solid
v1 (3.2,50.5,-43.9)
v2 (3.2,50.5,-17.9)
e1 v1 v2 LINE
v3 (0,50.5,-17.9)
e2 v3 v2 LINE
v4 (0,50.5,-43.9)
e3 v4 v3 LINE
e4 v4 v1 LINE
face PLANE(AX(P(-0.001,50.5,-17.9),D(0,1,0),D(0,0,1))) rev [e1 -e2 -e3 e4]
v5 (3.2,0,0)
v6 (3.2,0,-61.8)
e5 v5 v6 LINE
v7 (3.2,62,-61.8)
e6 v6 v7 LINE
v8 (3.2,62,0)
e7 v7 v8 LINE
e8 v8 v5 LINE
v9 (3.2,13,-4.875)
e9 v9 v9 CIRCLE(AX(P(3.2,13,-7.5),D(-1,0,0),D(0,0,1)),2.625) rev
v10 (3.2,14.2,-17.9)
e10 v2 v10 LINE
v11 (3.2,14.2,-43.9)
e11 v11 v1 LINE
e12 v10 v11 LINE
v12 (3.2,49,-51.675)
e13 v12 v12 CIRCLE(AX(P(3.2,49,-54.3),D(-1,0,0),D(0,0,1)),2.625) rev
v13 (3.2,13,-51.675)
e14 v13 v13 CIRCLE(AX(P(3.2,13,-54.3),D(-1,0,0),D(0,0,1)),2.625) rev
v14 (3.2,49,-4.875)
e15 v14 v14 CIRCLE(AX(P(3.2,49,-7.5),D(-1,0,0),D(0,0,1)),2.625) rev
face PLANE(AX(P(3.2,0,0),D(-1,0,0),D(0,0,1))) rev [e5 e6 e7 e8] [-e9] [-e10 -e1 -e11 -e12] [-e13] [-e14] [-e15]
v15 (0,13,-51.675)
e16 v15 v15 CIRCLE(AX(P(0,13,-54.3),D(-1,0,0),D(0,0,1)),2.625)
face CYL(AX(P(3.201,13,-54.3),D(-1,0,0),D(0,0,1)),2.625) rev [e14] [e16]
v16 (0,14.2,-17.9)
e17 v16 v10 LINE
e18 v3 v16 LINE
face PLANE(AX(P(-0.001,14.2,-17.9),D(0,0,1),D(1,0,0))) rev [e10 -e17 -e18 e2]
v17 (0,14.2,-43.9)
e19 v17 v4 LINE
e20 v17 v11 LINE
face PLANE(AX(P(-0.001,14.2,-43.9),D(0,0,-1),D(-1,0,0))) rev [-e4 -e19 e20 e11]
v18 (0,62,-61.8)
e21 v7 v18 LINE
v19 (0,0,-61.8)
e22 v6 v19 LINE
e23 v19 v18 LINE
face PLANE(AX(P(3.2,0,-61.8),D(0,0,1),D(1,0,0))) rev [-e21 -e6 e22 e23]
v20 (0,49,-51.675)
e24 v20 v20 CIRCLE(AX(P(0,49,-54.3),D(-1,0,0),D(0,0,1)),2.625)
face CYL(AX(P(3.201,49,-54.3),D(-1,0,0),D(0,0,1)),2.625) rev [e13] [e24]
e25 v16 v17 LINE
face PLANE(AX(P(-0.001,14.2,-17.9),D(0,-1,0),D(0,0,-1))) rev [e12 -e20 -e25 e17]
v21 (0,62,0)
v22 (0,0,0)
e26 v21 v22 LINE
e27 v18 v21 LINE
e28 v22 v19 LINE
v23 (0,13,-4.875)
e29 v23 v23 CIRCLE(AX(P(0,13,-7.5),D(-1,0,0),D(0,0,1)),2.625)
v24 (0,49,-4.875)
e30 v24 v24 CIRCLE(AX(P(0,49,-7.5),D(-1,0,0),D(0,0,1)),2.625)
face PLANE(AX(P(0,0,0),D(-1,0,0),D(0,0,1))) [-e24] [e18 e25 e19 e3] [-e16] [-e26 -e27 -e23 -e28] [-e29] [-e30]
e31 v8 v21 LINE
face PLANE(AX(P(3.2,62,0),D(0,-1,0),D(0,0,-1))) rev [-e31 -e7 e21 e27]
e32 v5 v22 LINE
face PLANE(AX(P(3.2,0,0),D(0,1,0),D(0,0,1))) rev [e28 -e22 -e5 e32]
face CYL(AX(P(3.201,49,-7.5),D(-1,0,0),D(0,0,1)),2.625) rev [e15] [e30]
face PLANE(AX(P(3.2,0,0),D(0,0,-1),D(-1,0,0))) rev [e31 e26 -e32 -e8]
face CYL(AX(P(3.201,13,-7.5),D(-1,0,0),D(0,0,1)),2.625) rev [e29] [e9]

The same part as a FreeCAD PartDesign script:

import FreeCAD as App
import Part
import Sketcher

V = App.Vector

doc = App.newDocument("Part")
body = doc.addObject("PartDesign::Body", "Body")

sketch1 = doc.addObject("Sketcher::SketchObject", "Sketch")
body.addObject(sketch1)
sketch1.AttachmentSupport = (doc.YZ_Plane, [""])
sketch1.MapMode = "FlatFace"
sketch1.addGeometry([
    Part.LineSegment(V(62, 0, 0), V(0, 0, 0)),
    Part.LineSegment(V(0, 0, 0), V(0, -61.8, 0)),
    Part.LineSegment(V(0, -61.8, 0), V(62, -61.8, 0)),
    Part.LineSegment(V(62, -61.8, 0), V(62, 0, 0)),
], False)
sketch1.addConstraint([
    Sketcher.Constraint("Coincident", 0, 2, 1, 1),
    Sketcher.Constraint("Coincident", 1, 2, 2, 1),
    Sketcher.Constraint("Coincident", 2, 2, 3, 1),
    Sketcher.Constraint("Coincident", 3, 2, 0, 1),
    Sketcher.Constraint("Horizontal", 0),
    Sketcher.Constraint("Vertical", 1),
    Sketcher.Constraint("Horizontal", 2),
    Sketcher.Constraint("Vertical", 3),
    Sketcher.Constraint("Coincident", 0, 2, -1, 1),
    Sketcher.Constraint("DistanceX", 0, 2, 0, 1, 62.0),
    Sketcher.Constraint("DistanceY", 1, 2, 1, 1, 61.8),
])
pad1 = doc.addObject("PartDesign::Pad", "Pad")
body.addObject(pad1)
pad1.Profile = sketch1
pad1.Length = 3.2

sketch2 = doc.addObject("Sketcher::SketchObject", "Sketch001")
body.addObject(sketch2)
sketch2.AttachmentSupport = (doc.YZ_Plane, [""])
sketch2.MapMode = "FlatFace"
sketch2.AttachmentOffset = App.Placement(V(0, 0, 3.2), App.Rotation())
sketch2.addGeometry([
    Part.LineSegment(V(50.5, -17.9, 0), V(14.2, -17.9, 0)),
    Part.LineSegment(V(14.2, -17.9, 0), V(14.2, -43.9, 0)),
    Part.LineSegment(V(14.2, -43.9, 0), V(50.5, -43.9, 0)),
    Part.LineSegment(V(50.5, -43.9, 0), V(50.5, -17.9, 0)),
], False)
sketch2.addConstraint([
    Sketcher.Constraint("Coincident", 0, 2, 1, 1),
    Sketcher.Constraint("Coincident", 1, 2, 2, 1),
    Sketcher.Constraint("Coincident", 2, 2, 3, 1),
    Sketcher.Constraint("Coincident", 3, 2, 0, 1),
    Sketcher.Constraint("Horizontal", 0),
    Sketcher.Constraint("Vertical", 1),
    Sketcher.Constraint("Horizontal", 2),
    Sketcher.Constraint("Vertical", 3),
    Sketcher.Constraint("DistanceY", 1, 2, 1, 1, 26.0),
    Sketcher.Constraint("DistanceX", 0, 2, 0, 1, 36.3),
    Sketcher.Constraint("DistanceX", -1, 1, 0, 2, 14.2),
    Sketcher.Constraint("DistanceY", 0, 2, -1, 1, 17.9),
])
pocket1 = doc.addObject("PartDesign::Pocket", "Pocket")
body.addObject(pocket1)
pocket1.Profile = sketch2
pocket1.Type = "UpToFirst"

sketch3 = doc.addObject("Sketcher::SketchObject", "Sketch002")
body.addObject(sketch3)
sketch3.AttachmentSupport = (doc.YZ_Plane, [""])
sketch3.MapMode = "FlatFace"
sketch3.addGeometry(Part.Circle(V(49, -7.5, 0), V(0, 0, 1), 2.625), False)
sketch3.addConstraint([
    Sketcher.Constraint("Diameter", 0, 5.25),
    Sketcher.Constraint("DistanceX", -1, 1, 0, 3, 49.0),
    Sketcher.Constraint("DistanceY", 0, 3, -1, 1, 7.5),
])
pocket2 = doc.addObject("PartDesign::Pocket", "Pocket001")
body.addObject(pocket2)
pocket2.Profile = sketch3
pocket2.Type = "UpToFirst"
pocket2.Reversed = True

sketch4 = doc.addObject("Sketcher::SketchObject", "Sketch003")
body.addObject(sketch4)
sketch4.AttachmentSupport = (doc.YZ_Plane, [""])
sketch4.MapMode = "FlatFace"
sketch4.addGeometry(Part.Circle(V(13, -7.5, 0), V(0, 0, 1), 2.625), False)
sketch4.addConstraint([
    Sketcher.Constraint("Diameter", 0, 5.25),
    Sketcher.Constraint("DistanceX", -1, 1, 0, 3, 13.0),
    Sketcher.Constraint("DistanceY", 0, 3, -1, 1, 7.5),
])
pocket3 = doc.addObject("PartDesign::Pocket", "Pocket002")
body.addObject(pocket3)
pocket3.Profile = sketch4
pocket3.Type = "UpToFirst"
pocket3.Reversed = True

sketch5 = doc.addObject("Sketcher::SketchObject", "Sketch004")
body.addObject(sketch5)
sketch5.AttachmentSupport = (doc.YZ_Plane, [""])
sketch5.MapMode = "FlatFace"
sketch5.addGeometry(Part.Circle(V(49, -54.3, 0), V(0, 0, 1), 2.625), False)
sketch5.addConstraint([
    Sketcher.Constraint("Diameter", 0, 5.25),
    Sketcher.Constraint("DistanceX", -1, 1, 0, 3, 49.0),
    Sketcher.Constraint("DistanceY", 0, 3, -1, 1, 54.3),
])
pocket4 = doc.addObject("PartDesign::Pocket", "Pocket003")
body.addObject(pocket4)
pocket4.Profile = sketch5
pocket4.Type = "UpToFirst"
pocket4.Reversed = True

sketch6 = doc.addObject("Sketcher::SketchObject", "Sketch005")
body.addObject(sketch6)
sketch6.AttachmentSupport = (doc.YZ_Plane, [""])
sketch6.MapMode = "FlatFace"
sketch6.addGeometry(Part.Circle(V(13, -54.3, 0), V(0, 0, 1), 2.625), False)
sketch6.addConstraint([
    Sketcher.Constraint("Diameter", 0, 5.25),
    Sketcher.Constraint("DistanceX", -1, 1, 0, 3, 13.0),
    Sketcher.Constraint("DistanceY", 0, 3, -1, 1, 54.3),
])
pocket5 = doc.addObject("PartDesign::Pocket", "Pocket004")
body.addObject(pocket5)
pocket5.Profile = sketch6
pocket5.Type = "UpToFirst"
pocket5.Reversed = True

doc.recompute()
